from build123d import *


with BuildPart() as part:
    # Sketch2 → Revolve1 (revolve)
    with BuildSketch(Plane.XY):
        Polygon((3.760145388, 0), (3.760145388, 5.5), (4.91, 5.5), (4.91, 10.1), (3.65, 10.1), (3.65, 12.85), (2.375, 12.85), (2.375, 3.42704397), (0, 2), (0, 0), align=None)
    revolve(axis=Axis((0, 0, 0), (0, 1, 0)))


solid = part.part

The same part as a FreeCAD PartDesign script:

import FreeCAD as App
import Part
import Sketcher
Q = App.Units.Quantity

doc = App.newDocument("Part")
body = doc.addObject("PartDesign::Body", "Body")

sketch1 = body.newObject("Sketcher::SketchObject", "Sketch")
sketch1.AttachmentSupport = (doc.getObject("XY_Plane"), [""])
sketch1.MapMode = "FlatFace"
sketch1.addGeometry([
    Part.LineSegment(App.Vector(3.8, 0, 0), App.Vector(3.8, 5.5, 0)),
    Part.LineSegment(App.Vector(3.8, 5.5, 0), App.Vector(4.9, 5.5, 0)),
    Part.LineSegment(App.Vector(4.9, 5.5, 0), App.Vector(4.9, 10.1, 0)),
    Part.LineSegment(App.Vector(4.9, 10.1, 0), App.Vector(3.6, 10.1, 0)),
    Part.LineSegment(App.Vector(3.6, 10.1, 0), App.Vector(3.6, 12.8, 0)),
    Part.LineSegment(App.Vector(3.6, 12.8, 0), App.Vector(2.4, 12.8, 0)),
    Part.LineSegment(App.Vector(2.4, 12.8, 0), App.Vector(2.4, 3.4, 0)),
    Part.LineSegment(App.Vector(2.4, 3.4, 0), App.Vector(0, 2, 0)),
    Part.LineSegment(App.Vector(0, 2, 0), App.Vector(0, 0, 0)),
    Part.LineSegment(App.Vector(0, 0, 0), App.Vector(3.8, 0, 0)),
], False)
sketch1.addConstraint([
    Sketcher.Constraint("Coincident", 0, 2, 1, 1),
    Sketcher.Constraint("Coincident", 1, 2, 2, 1),
    Sketcher.Constraint("Coincident", 2, 2, 3, 1),
    Sketcher.Constraint("Coincident", 3, 2, 4, 1),
    Sketcher.Constraint("Coincident", 4, 2, 5, 1),
    Sketcher.Constraint("Coincident", 5, 2, 6, 1),
    Sketcher.Constraint("Coincident", 6, 2, 7, 1),
    Sketcher.Constraint("Coincident", 7, 2, 8, 1),
    Sketcher.Constraint("Coincident", 8, 2, 9, 1),
    Sketcher.Constraint("Coincident", 9, 2, 0, 1),
    Sketcher.Constraint("Vertical", 0),
    Sketcher.Constraint("Horizontal", 1),
    Sketcher.Constraint("Vertical", 2),
    Sketcher.Constraint("Horizontal", 3),
    Sketcher.Constraint("Vertical", 4),
    Sketcher.Constraint("Horizontal", 5),
    Sketcher.Constraint("Vertical", 6),
    Sketcher.Constraint("Vertical", 8),
    Sketcher.Constraint("Horizontal", 9),
    Sketcher.Constraint("Coincident", 8, 2, -1, 1),
    Sketcher.Constraint("DistanceY", 8, 2, 8, 1, 2.0),
    Sketcher.Constraint("Angle", 7, Q("-149 deg")),
    Sketcher.Constraint("DistanceY", 0, 1, 0, 2, 5.5),
    Sketcher.Constraint("DistanceY", 2, 1, 2, 2, 4.6),
    Sketcher.Constraint("DistanceX", 3, 2, 3, 1, 1.26),
    Sketcher.Constraint("DistanceY", 4, 1, 4, 2, 2.75),
    Sketcher.Constraint("DistanceX", 5, 2, 5, 1, 1.275),
    Sketcher.Constraint("DistanceX", -1, 1, 1, 2, 4.91),
    Sketcher.Constraint("DistanceX", 1, 1, 1, 2, 1.149855),
])
revolution = body.newObject("PartDesign::Revolution", "Revolution")
revolution.Profile = sketch1
revolution.ReferenceAxis = (sketch1, ["V_Axis"])
revolution.Angle = 360

doc.recompute()
